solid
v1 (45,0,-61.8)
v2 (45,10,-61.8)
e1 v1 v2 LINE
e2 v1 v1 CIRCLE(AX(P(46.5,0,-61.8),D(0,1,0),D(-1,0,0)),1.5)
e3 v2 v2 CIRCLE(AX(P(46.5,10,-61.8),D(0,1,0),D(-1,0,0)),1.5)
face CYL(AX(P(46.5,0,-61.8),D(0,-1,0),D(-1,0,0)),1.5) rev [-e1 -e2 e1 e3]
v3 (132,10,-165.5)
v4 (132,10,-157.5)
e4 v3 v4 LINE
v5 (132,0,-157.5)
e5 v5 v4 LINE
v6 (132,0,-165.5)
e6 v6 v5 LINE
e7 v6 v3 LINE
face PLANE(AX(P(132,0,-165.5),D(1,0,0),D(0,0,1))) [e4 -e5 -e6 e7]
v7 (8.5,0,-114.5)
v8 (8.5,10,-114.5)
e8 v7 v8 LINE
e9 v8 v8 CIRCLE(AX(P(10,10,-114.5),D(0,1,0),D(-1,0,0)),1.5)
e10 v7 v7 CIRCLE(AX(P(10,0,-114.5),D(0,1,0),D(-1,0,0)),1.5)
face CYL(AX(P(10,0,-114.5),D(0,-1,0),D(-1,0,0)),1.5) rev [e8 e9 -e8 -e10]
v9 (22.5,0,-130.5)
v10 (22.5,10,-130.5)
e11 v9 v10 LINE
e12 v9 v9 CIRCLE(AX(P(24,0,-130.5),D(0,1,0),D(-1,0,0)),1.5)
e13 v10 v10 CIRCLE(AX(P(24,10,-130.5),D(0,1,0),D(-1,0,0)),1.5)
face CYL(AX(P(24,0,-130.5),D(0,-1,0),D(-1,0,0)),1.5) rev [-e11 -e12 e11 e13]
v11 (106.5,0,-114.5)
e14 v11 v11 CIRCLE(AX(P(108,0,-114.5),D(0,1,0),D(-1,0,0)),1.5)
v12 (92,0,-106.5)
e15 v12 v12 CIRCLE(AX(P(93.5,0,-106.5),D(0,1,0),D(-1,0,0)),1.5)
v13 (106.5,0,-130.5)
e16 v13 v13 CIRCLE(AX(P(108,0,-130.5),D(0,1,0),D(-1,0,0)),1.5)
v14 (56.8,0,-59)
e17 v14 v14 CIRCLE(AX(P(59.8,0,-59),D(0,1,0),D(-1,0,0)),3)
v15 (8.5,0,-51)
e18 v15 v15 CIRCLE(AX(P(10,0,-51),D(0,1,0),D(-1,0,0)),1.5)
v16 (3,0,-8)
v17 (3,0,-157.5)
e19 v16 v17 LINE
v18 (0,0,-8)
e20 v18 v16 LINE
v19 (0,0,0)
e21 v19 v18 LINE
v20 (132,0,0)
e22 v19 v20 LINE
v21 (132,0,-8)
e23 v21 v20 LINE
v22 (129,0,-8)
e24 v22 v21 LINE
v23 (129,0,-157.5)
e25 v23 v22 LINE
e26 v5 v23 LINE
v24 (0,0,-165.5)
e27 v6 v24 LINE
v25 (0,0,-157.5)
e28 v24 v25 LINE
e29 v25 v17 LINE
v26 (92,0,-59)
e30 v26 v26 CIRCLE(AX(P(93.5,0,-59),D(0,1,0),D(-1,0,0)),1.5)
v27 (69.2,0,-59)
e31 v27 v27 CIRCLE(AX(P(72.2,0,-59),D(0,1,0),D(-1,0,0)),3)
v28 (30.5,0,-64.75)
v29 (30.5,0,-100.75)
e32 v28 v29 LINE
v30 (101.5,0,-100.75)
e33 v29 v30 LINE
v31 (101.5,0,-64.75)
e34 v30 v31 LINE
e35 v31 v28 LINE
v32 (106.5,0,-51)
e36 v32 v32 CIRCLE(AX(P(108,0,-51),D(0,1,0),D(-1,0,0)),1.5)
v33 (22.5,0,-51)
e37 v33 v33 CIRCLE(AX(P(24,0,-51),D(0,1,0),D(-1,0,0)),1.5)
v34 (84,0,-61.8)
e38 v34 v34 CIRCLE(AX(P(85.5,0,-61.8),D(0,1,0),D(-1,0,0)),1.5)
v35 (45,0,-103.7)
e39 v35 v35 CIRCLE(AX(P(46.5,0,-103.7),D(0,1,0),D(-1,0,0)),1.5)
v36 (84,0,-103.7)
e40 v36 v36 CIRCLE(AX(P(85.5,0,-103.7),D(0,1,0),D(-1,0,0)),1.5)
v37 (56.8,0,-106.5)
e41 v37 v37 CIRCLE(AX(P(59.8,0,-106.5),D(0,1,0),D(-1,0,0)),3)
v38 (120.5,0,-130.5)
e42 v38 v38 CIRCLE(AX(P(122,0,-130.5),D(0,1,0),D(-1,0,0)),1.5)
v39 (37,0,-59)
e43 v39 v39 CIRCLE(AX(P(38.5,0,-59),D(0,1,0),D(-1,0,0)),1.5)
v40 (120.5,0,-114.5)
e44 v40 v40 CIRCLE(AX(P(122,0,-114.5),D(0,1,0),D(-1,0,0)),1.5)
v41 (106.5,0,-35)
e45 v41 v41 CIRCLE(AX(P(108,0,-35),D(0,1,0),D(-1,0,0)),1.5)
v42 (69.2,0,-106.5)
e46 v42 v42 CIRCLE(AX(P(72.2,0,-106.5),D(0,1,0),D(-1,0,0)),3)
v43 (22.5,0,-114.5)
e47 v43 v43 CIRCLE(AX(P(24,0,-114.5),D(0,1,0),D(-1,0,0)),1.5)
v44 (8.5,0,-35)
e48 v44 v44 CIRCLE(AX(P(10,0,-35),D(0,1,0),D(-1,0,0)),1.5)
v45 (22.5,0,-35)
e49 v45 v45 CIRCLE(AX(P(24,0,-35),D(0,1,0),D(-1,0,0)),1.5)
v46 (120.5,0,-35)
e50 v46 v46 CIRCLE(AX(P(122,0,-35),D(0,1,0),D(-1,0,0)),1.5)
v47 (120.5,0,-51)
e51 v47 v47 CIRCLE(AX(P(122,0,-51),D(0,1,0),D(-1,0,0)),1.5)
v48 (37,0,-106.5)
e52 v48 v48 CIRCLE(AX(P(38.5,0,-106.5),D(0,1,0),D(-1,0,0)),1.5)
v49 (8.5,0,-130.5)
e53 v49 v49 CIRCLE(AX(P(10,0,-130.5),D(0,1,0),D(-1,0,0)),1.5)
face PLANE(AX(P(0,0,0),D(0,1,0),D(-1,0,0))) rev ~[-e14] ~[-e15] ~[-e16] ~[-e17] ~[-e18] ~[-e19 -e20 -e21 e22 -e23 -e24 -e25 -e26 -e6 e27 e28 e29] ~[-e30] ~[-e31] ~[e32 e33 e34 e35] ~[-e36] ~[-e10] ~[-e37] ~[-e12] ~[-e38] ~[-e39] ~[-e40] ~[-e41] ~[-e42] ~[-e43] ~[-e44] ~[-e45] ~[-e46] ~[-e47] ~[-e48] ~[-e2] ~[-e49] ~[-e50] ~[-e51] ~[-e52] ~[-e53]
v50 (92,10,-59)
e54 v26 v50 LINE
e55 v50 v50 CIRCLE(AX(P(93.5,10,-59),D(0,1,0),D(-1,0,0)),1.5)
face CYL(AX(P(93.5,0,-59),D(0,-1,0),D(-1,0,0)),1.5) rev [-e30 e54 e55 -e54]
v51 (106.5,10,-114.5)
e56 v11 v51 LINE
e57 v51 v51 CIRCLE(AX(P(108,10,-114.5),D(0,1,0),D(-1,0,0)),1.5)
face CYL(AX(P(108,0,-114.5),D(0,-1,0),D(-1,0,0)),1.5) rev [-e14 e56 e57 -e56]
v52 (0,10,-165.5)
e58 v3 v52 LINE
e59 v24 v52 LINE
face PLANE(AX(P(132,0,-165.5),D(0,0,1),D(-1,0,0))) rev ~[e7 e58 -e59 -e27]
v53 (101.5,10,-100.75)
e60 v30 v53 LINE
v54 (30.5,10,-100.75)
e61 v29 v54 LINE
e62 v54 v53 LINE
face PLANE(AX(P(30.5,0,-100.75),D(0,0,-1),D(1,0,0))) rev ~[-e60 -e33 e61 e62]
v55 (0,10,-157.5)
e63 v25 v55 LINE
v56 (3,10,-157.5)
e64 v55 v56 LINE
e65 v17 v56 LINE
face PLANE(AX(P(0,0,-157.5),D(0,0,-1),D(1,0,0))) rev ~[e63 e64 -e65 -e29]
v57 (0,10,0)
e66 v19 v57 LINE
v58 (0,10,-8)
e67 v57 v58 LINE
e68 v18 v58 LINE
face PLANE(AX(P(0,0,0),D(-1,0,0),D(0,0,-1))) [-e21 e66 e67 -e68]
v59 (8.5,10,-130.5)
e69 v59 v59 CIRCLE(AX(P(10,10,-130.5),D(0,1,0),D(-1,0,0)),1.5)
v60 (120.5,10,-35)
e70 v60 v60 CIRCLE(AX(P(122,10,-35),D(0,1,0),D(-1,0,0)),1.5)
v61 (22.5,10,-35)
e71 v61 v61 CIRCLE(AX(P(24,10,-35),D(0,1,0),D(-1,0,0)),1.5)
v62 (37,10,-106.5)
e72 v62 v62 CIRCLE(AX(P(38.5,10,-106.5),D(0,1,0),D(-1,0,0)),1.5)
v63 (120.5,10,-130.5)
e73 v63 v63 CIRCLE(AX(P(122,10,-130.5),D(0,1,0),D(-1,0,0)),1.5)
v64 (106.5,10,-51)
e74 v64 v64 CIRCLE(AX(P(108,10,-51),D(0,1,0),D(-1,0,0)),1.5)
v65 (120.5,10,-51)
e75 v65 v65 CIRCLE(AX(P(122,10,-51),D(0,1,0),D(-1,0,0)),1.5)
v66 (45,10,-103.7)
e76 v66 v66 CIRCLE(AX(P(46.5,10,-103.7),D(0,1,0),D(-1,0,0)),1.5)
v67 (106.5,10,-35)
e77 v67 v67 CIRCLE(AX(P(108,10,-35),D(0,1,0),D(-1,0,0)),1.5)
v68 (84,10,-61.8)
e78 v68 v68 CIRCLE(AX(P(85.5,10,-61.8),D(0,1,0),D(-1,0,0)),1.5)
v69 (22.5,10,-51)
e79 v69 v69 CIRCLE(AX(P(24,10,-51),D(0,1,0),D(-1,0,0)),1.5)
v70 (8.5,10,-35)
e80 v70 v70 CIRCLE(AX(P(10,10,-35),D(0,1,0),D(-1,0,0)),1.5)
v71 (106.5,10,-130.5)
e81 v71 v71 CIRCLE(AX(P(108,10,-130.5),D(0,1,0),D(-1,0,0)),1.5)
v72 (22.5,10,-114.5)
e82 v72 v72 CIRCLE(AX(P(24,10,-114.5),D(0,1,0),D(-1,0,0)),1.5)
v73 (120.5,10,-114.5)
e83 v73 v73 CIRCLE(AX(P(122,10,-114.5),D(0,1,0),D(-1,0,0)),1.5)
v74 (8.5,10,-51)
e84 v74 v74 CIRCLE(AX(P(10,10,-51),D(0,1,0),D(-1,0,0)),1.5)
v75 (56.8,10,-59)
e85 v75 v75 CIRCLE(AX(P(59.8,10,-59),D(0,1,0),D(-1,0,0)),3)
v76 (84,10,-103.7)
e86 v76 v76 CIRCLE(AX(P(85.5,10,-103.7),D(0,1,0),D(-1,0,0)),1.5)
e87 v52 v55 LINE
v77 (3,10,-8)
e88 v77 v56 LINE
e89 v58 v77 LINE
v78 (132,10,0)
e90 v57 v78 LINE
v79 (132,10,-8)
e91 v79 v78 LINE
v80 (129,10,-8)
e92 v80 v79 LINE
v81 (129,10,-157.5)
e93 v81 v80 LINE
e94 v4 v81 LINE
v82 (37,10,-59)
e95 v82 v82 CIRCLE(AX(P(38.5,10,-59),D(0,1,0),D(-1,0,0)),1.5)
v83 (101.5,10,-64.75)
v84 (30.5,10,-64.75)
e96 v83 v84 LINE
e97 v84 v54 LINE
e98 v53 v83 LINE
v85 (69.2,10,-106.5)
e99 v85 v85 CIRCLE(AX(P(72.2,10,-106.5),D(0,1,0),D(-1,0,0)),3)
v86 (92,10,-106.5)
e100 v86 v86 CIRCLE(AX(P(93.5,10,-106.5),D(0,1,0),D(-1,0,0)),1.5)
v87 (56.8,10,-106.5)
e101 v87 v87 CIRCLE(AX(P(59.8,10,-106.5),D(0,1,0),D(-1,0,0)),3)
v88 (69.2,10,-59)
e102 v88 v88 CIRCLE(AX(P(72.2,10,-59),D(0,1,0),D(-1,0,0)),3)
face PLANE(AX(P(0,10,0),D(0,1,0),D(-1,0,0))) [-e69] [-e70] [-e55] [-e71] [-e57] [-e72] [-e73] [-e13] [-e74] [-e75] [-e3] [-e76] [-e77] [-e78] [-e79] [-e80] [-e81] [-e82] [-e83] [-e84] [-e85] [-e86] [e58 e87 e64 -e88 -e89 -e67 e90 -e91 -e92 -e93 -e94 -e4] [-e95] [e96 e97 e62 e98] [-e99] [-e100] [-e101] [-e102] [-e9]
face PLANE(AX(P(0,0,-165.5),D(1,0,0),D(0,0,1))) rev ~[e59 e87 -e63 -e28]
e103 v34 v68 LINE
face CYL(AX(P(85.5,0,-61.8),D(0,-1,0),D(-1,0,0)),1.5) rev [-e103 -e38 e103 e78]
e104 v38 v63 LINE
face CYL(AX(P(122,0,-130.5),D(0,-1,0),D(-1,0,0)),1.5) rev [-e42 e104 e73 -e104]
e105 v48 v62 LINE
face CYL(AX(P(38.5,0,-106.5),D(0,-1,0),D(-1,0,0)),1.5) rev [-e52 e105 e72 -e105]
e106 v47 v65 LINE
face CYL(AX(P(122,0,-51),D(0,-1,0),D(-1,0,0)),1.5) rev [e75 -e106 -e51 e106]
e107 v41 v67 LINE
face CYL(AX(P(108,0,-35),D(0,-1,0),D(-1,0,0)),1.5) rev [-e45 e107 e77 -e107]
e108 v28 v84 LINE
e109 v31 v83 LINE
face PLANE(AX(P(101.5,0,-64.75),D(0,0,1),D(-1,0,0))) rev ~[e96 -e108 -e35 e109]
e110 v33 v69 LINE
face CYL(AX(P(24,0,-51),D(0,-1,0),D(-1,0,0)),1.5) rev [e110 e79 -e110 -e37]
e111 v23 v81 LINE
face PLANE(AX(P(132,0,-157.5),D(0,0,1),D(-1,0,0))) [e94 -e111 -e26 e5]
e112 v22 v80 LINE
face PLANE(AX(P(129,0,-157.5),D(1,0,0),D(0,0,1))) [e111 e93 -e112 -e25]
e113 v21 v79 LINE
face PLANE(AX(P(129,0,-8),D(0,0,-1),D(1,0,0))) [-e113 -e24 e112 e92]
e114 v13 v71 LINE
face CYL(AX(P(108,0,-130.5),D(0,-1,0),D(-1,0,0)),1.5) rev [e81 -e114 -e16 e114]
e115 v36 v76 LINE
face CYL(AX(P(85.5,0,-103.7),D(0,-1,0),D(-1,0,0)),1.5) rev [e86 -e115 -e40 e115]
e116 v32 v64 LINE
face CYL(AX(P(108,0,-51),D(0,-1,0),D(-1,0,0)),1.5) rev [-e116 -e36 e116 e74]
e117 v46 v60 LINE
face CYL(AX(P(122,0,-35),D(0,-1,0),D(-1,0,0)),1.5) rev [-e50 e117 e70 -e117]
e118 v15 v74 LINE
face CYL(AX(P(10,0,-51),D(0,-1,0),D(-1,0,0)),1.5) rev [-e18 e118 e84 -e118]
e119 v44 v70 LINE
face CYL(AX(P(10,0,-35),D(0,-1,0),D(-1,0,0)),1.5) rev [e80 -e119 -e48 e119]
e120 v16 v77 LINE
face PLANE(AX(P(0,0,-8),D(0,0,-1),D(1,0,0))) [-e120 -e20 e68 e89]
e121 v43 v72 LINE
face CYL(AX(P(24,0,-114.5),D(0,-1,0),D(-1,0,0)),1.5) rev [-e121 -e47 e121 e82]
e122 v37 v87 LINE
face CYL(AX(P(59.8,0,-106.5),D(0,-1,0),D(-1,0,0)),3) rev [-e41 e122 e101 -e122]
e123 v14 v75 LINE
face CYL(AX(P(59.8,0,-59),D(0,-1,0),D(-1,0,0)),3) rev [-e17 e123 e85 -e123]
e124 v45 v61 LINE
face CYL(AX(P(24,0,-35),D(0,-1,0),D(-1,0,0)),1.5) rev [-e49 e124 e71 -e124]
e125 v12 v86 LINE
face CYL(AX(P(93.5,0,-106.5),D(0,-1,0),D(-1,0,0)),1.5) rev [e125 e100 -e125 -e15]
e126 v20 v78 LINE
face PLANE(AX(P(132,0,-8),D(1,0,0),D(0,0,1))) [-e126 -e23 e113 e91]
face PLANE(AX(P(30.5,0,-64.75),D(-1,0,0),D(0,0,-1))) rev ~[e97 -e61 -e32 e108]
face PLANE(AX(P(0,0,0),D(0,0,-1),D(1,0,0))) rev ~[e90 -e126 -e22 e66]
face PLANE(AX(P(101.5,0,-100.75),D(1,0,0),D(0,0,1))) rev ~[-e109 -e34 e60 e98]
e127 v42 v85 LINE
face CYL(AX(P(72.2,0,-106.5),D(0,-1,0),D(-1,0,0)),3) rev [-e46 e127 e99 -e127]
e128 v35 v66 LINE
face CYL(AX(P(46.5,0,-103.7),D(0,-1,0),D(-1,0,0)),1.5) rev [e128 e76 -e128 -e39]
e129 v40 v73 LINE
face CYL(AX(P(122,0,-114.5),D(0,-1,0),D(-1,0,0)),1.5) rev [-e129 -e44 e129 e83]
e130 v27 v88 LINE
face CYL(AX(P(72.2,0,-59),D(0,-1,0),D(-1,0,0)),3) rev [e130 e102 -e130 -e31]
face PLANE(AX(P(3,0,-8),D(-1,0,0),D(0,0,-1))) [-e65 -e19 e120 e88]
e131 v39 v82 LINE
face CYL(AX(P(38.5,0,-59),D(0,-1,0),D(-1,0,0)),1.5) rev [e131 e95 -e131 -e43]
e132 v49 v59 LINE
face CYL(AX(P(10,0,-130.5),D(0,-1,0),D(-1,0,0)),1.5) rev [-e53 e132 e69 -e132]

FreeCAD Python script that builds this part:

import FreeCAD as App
import Part
import Sketcher
from FreeCAD import Vector

doc = App.newDocument("Part")
params = doc.addObject("Spreadsheet::Sheet", "Params")
for row, (alias, value) in enumerate([
    ("sketch1_diameter", "3 mm"),
    ("sketch1_diameter2", "6 mm"),
    ("sketch1_width", "132 mm"),
    ("sketch1_width2", "3 mm"),
    ("sketch1_width3", "71 mm"),
    ("pad1_length", "10 mm"),
], start=1):
    params.set(f"A{row}", alias)
    params.set(f"B{row}", "=" + value)
    params.setAlias(f"B{row}", alias)

body = doc.addObject("PartDesign::Body", "Body")

# Sketch on XZ plane
sketch1 = doc.addObject("Sketcher::SketchObject", "Sketch")
body.addObject(sketch1)
sketch1.AttachmentSupport = (doc.XZ_Plane, [""])
sketch1.MapMode = "FlatFace"
sketch1.addGeometry([
    Part.LineSegment(Vector(0, -8, 0), Vector(0, 0, 0)),  # 0
    Part.LineSegment(Vector(0, 0, 0), Vector(132, 0, 0)),  # 1
    Part.LineSegment(Vector(132, 0, 0), Vector(132, -8, 0)),  # 2
    Part.LineSegment(Vector(132, -8, 0), Vector(129, -8, 0)),  # 3
    Part.LineSegment(Vector(129, -8, 0), Vector(129, -157.5, 0)),  # 4
    Part.LineSegment(Vector(129, -157.5, 0), Vector(132, -157.5, 0)),  # 5
    Part.LineSegment(Vector(132, -157.5, 0), Vector(132, -165.5, 0)),  # 6
    Part.LineSegment(Vector(132, -165.5, 0), Vector(0, -165.5, 0)),  # 7
    Part.LineSegment(Vector(0, -165.5, 0), Vector(0, -157.5, 0)),  # 8
    Part.LineSegment(Vector(0, -157.5, 0), Vector(3, -157.5, 0)),  # 9
    Part.LineSegment(Vector(3, -157.5, 0), Vector(3, -8, 0)),  # 10
    Part.LineSegment(Vector(3, -8, 0), Vector(0, -8, 0)),  # 11
    Part.Circle(Vector(122, -130.5, 0), Vector(0, 0, 1), 1.5),  # 12
    Part.Circle(Vector(108, -130.5, 0), Vector(0, 0, 1), 1.5),  # 13
    Part.Circle(Vector(122, -114.5, 0), Vector(0, 0, 1), 1.5),  # 14
    Part.Circle(Vector(108, -114.5, 0), Vector(0, 0, 1), 1.5),  # 15
    Part.Circle(Vector(93.5, -106.5, 0), Vector(0, 0, 1), 1.5),  # 16
    Part.Circle(Vector(85.5, -103.7, 0), Vector(0, 0, 1), 1.5),  # 17
    Part.Circle(Vector(72.2, -106.5, 0), Vector(0, 0, 1), 3),  # 18
    Part.Circle(Vector(24, -130.5, 0), Vector(0, 0, 1), 1.5),  # 19
    Part.Circle(Vector(10, -130.5, 0), Vector(0, 0, 1), 1.5),  # 20
    Part.Circle(Vector(59.8, -106.5, 0), Vector(0, 0, 1), 3),  # 21
    Part.Circle(Vector(46.5, -103.7, 0), Vector(0, 0, 1), 1.5),  # 22
    Part.Circle(Vector(38.5, -106.5, 0), Vector(0, 0, 1), 1.5),  # 23
    Part.Circle(Vector(24, -114.5, 0), Vector(0, 0, 1), 1.5),  # 24
    Part.Circle(Vector(10, -114.5, 0), Vector(0, 0, 1), 1.5),  # 25
    Part.Circle(Vector(122, -51, 0), Vector(0, 0, 1), 1.5),  # 26
    Part.Circle(Vector(108, -51, 0), Vector(0, 0, 1), 1.5),  # 27
    Part.Circle(Vector(93.5, -59, 0), Vector(0, 0, 1), 1.5),  # 28
    Part.Circle(Vector(85.5, -61.8, 0), Vector(0, 0, 1), 1.5),  # 29
    Part.Circle(Vector(72.2, -59, 0), Vector(0, 0, 1), 3),  # 30
    Part.Circle(Vector(122, -35, 0), Vector(0, 0, 1), 1.5),  # 31
    Part.Circle(Vector(108, -35, 0), Vector(0, 0, 1), 1.5),  # 32
    Part.LineSegment(Vector(30.5, -64.8, 0), Vector(30.5, -100.8, 0)),  # 33
    Part.LineSegment(Vector(30.5, -100.8, 0), Vector(101.5, -100.8, 0)),  # 34
    Part.LineSegment(Vector(101.5, -100.8, 0), Vector(101.5, -64.8, 0)),  # 35
    Part.LineSegment(Vector(101.5, -64.8, 0), Vector(30.5, -64.8, 0)),  # 36
    Part.Circle(Vector(59.8, -59, 0), Vector(0, 0, 1), 3),  # 37
    Part.Circle(Vector(46.5, -61.8, 0), Vector(0, 0, 1), 1.5),  # 38
    Part.Circle(Vector(38.5, -59, 0), Vector(0, 0, 1), 1.5),  # 39
    Part.Circle(Vector(24, -51, 0), Vector(0, 0, 1), 1.5),  # 40
    Part.Circle(Vector(10, -51, 0), Vector(0, 0, 1), 1.5),  # 41
    Part.Circle(Vector(24, -35, 0), Vector(0, 0, 1), 1.5),  # 42
    Part.Circle(Vector(10, -35, 0), Vector(0, 0, 1), 1.5),  # 43
], False)
sketch1.addConstraint([
    Sketcher.Constraint("Coincident", 0, 2, 1, 1),
    Sketcher.Constraint("Coincident", 1, 2, 2, 1),
    Sketcher.Constraint("Coincident", 2, 2, 3, 1),
    Sketcher.Constraint("Coincident", 3, 2, 4, 1),
    Sketcher.Constraint("Coincident", 4, 2, 5, 1),
    Sketcher.Constraint("Coincident", 5, 2, 6, 1),
    Sketcher.Constraint("Coincident", 6, 2, 7, 1),
    Sketcher.Constraint("Coincident", 7, 2, 8, 1),
    Sketcher.Constraint("Coincident", 8, 2, 9, 1),
    Sketcher.Constraint("Coincident", 9, 2, 10, 1),
    Sketcher.Constraint("Coincident", 10, 2, 11, 1),
    Sketcher.Constraint("Coincident", 11, 2, 0, 1),
    Sketcher.Constraint("Coincident", 33, 2, 34, 1),
    Sketcher.Constraint("Coincident", 34, 2, 35, 1),
    Sketcher.Constraint("Coincident", 35, 2, 36, 1),
    Sketcher.Constraint("Coincident", 36, 2, 33, 1),
    Sketcher.Constraint("Vertical", 0),
    Sketcher.Constraint("Horizontal", 1),
    Sketcher.Constraint("Vertical", 2),
    Sketcher.Constraint("Horizontal", 3),
    Sketcher.Constraint("Vertical", 4),
    Sketcher.Constraint("Horizontal", 5),
    Sketcher.Constraint("Vertical", 6),
    Sketcher.Constraint("Horizontal", 7),
    Sketcher.Constraint("Vertical", 8),
    Sketcher.Constraint("Horizontal", 9),
    Sketcher.Constraint("Vertical", 10),
    Sketcher.Constraint("Horizontal", 11),
    Sketcher.Constraint("Vertical", 33),
    Sketcher.Constraint("Horizontal", 34),
    Sketcher.Constraint("Vertical", 35),
    Sketcher.Constraint("Horizontal", 36),
    Sketcher.Constraint("Coincident", 0, 2, -1, 1),
    Sketcher.Constraint("Equal", 12, 13),
    Sketcher.Constraint("Equal", 13, 14),
    Sketcher.Constraint("Equal", 14, 15),
    Sketcher.Constraint("Equal", 15, 16),
    Sketcher.Constraint("Equal", 16, 17),
    Sketcher.Constraint("Equal", 17, 19),
    Sketcher.Constraint("Equal", 19, 20),
    Sketcher.Constraint("Equal", 18, 21),
    Sketcher.Constraint("Equal", 20, 22),
    Sketcher.Constraint("Equal", 22, 23),
    Sketcher.Constraint("Equal", 23, 24),
    Sketcher.Constraint("Equal", 24, 25),
    Sketcher.Constraint("Equal", 25, 26),
    Sketcher.Constraint("Equal", 26, 27),
    Sketcher.Constraint("Equal", 27, 28),
    Sketcher.Constraint("Equal", 28, 29),
    Sketcher.Constraint("Equal", 21, 30),
    Sketcher.Constraint("Equal", 29, 31),
    Sketcher.Constraint("Equal", 31, 32),
    Sketcher.Constraint("Equal", 30, 37),
    Sketcher.Constraint("Equal", 32, 38),
    Sketcher.Constraint("Equal", 38, 39),
    Sketcher.Constraint("Equal", 39, 40),
    Sketcher.Constraint("Equal", 40, 41),
    Sketcher.Constraint("Equal", 41, 42),
    Sketcher.Constraint("Equal", 42, 43),
    Sketcher.Constraint("PointOnObject", 7, 2, -2),
    Sketcher.Constraint("Horizontal", 12, 3, 13, 3),
    Sketcher.Constraint("Horizontal", 14, 3, 15, 3),
    Sketcher.Constraint("Horizontal", 16, 3, 18, 3),
    Sketcher.Constraint("Horizontal", 13, 3, 19, 3),
    Sketcher.Constraint("Horizontal", 19, 3, 20, 3),
    Sketcher.Constraint("Horizontal", 18, 3, 21, 3),
    Sketcher.Constraint("Horizontal", 17, 3, 22, 3),
    Sketcher.Constraint("Horizontal", 21, 3, 23, 3),
    Sketcher.Constraint("Horizontal", 15, 3, 24, 3),
    Sketcher.Constraint("Horizontal", 24, 3, 25, 3),
    Sketcher.Constraint("Horizontal", 26, 3, 27, 3),
    Sketcher.Constraint("Horizontal", 28, 3, 30, 3),
    Sketcher.Constraint("Horizontal", 31, 3, 32, 3),
    Sketcher.Constraint("Horizontal", 30, 3, 37, 3),
    Sketcher.Constraint("Horizontal", 29, 3, 38, 3),
    Sketcher.Constraint("Horizontal", 37, 3, 39, 3),
    Sketcher.Constraint("Horizontal", 27, 3, 40, 3),
    Sketcher.Constraint("Horizontal", 40, 3, 41, 3),
    Sketcher.Constraint("Horizontal", 32, 3, 42, 3),
    Sketcher.Constraint("Horizontal", 42, 3, 43, 3),
    Sketcher.Constraint("Horizontal", 5, 2, 8, 2),
    Sketcher.Constraint("Horizontal", 3, 2, 10, 2),
    Sketcher.Constraint("Vertical", 12, 3, 14, 3),
    Sketcher.Constraint("Vertical", 13, 3, 15, 3),
    Sketcher.Constraint("Vertical", 19, 3, 24, 3),
    Sketcher.Constraint("Vertical", 20, 3, 25, 3),
    Sketcher.Constraint("Vertical", 14, 3, 26, 3),
    Sketcher.Constraint("Vertical", 15, 3, 27, 3),
    Sketcher.Constraint("Vertical", 16, 3, 28, 3),
    Sketcher.Constraint("Vertical", 17, 3, 29, 3),
    Sketcher.Constraint("Vertical", 18, 3, 30, 3),
    Sketcher.Constraint("Vertical", 26, 3, 31, 3),
    Sketcher.Constraint("Vertical", 27, 3, 32, 3),
    Sketcher.Constraint("Vertical", 21, 3, 37, 3),
    Sketcher.Constraint("Vertical", 22, 3, 38, 3),
    Sketcher.Constraint("Vertical", 23, 3, 39, 3),
    Sketcher.Constraint("Vertical", 24, 3, 40, 3),
    Sketcher.Constraint("Vertical", 25, 3, 41, 3),
    Sketcher.Constraint("Vertical", 40, 3, 42, 3),
    Sketcher.Constraint("Vertical", 41, 3, 43, 3),
    Sketcher.Constraint("Vertical", 2, 2, 5, 2),
    Sketcher.Constraint("Equal", 5, 9),
    Sketcher.Constraint("Equal", 2, 6),
    Sketcher.Constraint("Diameter", 12, 3.0),
    Sketcher.Constraint("Diameter", 18, 6.0),
    Sketcher.Constraint("DistanceX", 1, 1, 1, 2, 132.0),
    Sketcher.Constraint("DistanceX", 3, 2, 3, 1, 3.0),
    Sketcher.Constraint("DistanceX", 34, 1, 34, 2, 71.0),
    Sketcher.Constraint("DistanceY", 0, 1, 0, 2, 8.0),
    Sketcher.Constraint("DistanceY", 33, 2, 33, 1, 36.0),
    Sketcher.Constraint("DistanceY", 4, 2, 4, 1, 149.5),
    Sketcher.Constraint("DistanceX", -1, 1, 12, 3, 122.0),
    Sketcher.Constraint("DistanceX", -1, 1, 13, 3, 108.0),
    Sketcher.Constraint("DistanceX", -1, 1, 19, 3, 24.0),
    Sketcher.Constraint("DistanceX", -1, 1, 20, 3, 10.0),
    Sketcher.Constraint("DistanceY", 26, 3, -1, 1, 51.0),
    Sketcher.Constraint("DistanceY", 28, 3, -1, 1, 59.0),
    Sketcher.Constraint("DistanceY", 31, 3, -1, 1, 35.0),
    Sketcher.Constraint("DistanceY", 12, 3, 14, 3, 16.0),
    Sketcher.Constraint("DistanceY", 15, 3, 16, 3, 8.0),
    Sketcher.Constraint("DistanceX", 17, 3, 16, 3, 8.0),
    Sketcher.Constraint("DistanceX", 22, 3, 17, 3, 39.0),
    Sketcher.Constraint("DistanceX", 23, 3, 22, 3, 8.0),
    Sketcher.Constraint("DistanceY", 4, 2, 12, 3, 27.0),
    Sketcher.Constraint("DistanceX", 33, 2, 23, 3, 8.0),
    Sketcher.Constraint("DistanceX", -1, 1, 16, 3, 93.5),
    Sketcher.Constraint("DistanceY", 17, 3, -1, 1, 103.7),
    Sketcher.Constraint("DistanceX", -1, 1, 18, 3, 72.2),
    Sketcher.Constraint("DistanceX", -1, 1, 21, 3, 59.8),
    Sketcher.Constraint("DistanceY", 29, 3, -1, 1, 61.8),
    Sketcher.Constraint("DistanceY", 33, 2, -1, 1, 100.75),
])
sketch1.setExpression("Constraints[103]", "Params.sketch1_diameter")
sketch1.setExpression("Constraints[104]", "Params.sketch1_diameter2")
sketch1.setExpression("Constraints[105]", "Params.sketch1_width")
sketch1.setExpression("Constraints[106]", "Params.sketch1_width2")
sketch1.setExpression("Constraints[107]", "Params.sketch1_width3")
pad1 = doc.addObject("PartDesign::Pad", "Pad")
body.addObject(pad1)
pad1.Profile = sketch1
pad1.setExpression("Length", "Params.pad1_length")
pad1.Reversed = True

doc.recompute()
